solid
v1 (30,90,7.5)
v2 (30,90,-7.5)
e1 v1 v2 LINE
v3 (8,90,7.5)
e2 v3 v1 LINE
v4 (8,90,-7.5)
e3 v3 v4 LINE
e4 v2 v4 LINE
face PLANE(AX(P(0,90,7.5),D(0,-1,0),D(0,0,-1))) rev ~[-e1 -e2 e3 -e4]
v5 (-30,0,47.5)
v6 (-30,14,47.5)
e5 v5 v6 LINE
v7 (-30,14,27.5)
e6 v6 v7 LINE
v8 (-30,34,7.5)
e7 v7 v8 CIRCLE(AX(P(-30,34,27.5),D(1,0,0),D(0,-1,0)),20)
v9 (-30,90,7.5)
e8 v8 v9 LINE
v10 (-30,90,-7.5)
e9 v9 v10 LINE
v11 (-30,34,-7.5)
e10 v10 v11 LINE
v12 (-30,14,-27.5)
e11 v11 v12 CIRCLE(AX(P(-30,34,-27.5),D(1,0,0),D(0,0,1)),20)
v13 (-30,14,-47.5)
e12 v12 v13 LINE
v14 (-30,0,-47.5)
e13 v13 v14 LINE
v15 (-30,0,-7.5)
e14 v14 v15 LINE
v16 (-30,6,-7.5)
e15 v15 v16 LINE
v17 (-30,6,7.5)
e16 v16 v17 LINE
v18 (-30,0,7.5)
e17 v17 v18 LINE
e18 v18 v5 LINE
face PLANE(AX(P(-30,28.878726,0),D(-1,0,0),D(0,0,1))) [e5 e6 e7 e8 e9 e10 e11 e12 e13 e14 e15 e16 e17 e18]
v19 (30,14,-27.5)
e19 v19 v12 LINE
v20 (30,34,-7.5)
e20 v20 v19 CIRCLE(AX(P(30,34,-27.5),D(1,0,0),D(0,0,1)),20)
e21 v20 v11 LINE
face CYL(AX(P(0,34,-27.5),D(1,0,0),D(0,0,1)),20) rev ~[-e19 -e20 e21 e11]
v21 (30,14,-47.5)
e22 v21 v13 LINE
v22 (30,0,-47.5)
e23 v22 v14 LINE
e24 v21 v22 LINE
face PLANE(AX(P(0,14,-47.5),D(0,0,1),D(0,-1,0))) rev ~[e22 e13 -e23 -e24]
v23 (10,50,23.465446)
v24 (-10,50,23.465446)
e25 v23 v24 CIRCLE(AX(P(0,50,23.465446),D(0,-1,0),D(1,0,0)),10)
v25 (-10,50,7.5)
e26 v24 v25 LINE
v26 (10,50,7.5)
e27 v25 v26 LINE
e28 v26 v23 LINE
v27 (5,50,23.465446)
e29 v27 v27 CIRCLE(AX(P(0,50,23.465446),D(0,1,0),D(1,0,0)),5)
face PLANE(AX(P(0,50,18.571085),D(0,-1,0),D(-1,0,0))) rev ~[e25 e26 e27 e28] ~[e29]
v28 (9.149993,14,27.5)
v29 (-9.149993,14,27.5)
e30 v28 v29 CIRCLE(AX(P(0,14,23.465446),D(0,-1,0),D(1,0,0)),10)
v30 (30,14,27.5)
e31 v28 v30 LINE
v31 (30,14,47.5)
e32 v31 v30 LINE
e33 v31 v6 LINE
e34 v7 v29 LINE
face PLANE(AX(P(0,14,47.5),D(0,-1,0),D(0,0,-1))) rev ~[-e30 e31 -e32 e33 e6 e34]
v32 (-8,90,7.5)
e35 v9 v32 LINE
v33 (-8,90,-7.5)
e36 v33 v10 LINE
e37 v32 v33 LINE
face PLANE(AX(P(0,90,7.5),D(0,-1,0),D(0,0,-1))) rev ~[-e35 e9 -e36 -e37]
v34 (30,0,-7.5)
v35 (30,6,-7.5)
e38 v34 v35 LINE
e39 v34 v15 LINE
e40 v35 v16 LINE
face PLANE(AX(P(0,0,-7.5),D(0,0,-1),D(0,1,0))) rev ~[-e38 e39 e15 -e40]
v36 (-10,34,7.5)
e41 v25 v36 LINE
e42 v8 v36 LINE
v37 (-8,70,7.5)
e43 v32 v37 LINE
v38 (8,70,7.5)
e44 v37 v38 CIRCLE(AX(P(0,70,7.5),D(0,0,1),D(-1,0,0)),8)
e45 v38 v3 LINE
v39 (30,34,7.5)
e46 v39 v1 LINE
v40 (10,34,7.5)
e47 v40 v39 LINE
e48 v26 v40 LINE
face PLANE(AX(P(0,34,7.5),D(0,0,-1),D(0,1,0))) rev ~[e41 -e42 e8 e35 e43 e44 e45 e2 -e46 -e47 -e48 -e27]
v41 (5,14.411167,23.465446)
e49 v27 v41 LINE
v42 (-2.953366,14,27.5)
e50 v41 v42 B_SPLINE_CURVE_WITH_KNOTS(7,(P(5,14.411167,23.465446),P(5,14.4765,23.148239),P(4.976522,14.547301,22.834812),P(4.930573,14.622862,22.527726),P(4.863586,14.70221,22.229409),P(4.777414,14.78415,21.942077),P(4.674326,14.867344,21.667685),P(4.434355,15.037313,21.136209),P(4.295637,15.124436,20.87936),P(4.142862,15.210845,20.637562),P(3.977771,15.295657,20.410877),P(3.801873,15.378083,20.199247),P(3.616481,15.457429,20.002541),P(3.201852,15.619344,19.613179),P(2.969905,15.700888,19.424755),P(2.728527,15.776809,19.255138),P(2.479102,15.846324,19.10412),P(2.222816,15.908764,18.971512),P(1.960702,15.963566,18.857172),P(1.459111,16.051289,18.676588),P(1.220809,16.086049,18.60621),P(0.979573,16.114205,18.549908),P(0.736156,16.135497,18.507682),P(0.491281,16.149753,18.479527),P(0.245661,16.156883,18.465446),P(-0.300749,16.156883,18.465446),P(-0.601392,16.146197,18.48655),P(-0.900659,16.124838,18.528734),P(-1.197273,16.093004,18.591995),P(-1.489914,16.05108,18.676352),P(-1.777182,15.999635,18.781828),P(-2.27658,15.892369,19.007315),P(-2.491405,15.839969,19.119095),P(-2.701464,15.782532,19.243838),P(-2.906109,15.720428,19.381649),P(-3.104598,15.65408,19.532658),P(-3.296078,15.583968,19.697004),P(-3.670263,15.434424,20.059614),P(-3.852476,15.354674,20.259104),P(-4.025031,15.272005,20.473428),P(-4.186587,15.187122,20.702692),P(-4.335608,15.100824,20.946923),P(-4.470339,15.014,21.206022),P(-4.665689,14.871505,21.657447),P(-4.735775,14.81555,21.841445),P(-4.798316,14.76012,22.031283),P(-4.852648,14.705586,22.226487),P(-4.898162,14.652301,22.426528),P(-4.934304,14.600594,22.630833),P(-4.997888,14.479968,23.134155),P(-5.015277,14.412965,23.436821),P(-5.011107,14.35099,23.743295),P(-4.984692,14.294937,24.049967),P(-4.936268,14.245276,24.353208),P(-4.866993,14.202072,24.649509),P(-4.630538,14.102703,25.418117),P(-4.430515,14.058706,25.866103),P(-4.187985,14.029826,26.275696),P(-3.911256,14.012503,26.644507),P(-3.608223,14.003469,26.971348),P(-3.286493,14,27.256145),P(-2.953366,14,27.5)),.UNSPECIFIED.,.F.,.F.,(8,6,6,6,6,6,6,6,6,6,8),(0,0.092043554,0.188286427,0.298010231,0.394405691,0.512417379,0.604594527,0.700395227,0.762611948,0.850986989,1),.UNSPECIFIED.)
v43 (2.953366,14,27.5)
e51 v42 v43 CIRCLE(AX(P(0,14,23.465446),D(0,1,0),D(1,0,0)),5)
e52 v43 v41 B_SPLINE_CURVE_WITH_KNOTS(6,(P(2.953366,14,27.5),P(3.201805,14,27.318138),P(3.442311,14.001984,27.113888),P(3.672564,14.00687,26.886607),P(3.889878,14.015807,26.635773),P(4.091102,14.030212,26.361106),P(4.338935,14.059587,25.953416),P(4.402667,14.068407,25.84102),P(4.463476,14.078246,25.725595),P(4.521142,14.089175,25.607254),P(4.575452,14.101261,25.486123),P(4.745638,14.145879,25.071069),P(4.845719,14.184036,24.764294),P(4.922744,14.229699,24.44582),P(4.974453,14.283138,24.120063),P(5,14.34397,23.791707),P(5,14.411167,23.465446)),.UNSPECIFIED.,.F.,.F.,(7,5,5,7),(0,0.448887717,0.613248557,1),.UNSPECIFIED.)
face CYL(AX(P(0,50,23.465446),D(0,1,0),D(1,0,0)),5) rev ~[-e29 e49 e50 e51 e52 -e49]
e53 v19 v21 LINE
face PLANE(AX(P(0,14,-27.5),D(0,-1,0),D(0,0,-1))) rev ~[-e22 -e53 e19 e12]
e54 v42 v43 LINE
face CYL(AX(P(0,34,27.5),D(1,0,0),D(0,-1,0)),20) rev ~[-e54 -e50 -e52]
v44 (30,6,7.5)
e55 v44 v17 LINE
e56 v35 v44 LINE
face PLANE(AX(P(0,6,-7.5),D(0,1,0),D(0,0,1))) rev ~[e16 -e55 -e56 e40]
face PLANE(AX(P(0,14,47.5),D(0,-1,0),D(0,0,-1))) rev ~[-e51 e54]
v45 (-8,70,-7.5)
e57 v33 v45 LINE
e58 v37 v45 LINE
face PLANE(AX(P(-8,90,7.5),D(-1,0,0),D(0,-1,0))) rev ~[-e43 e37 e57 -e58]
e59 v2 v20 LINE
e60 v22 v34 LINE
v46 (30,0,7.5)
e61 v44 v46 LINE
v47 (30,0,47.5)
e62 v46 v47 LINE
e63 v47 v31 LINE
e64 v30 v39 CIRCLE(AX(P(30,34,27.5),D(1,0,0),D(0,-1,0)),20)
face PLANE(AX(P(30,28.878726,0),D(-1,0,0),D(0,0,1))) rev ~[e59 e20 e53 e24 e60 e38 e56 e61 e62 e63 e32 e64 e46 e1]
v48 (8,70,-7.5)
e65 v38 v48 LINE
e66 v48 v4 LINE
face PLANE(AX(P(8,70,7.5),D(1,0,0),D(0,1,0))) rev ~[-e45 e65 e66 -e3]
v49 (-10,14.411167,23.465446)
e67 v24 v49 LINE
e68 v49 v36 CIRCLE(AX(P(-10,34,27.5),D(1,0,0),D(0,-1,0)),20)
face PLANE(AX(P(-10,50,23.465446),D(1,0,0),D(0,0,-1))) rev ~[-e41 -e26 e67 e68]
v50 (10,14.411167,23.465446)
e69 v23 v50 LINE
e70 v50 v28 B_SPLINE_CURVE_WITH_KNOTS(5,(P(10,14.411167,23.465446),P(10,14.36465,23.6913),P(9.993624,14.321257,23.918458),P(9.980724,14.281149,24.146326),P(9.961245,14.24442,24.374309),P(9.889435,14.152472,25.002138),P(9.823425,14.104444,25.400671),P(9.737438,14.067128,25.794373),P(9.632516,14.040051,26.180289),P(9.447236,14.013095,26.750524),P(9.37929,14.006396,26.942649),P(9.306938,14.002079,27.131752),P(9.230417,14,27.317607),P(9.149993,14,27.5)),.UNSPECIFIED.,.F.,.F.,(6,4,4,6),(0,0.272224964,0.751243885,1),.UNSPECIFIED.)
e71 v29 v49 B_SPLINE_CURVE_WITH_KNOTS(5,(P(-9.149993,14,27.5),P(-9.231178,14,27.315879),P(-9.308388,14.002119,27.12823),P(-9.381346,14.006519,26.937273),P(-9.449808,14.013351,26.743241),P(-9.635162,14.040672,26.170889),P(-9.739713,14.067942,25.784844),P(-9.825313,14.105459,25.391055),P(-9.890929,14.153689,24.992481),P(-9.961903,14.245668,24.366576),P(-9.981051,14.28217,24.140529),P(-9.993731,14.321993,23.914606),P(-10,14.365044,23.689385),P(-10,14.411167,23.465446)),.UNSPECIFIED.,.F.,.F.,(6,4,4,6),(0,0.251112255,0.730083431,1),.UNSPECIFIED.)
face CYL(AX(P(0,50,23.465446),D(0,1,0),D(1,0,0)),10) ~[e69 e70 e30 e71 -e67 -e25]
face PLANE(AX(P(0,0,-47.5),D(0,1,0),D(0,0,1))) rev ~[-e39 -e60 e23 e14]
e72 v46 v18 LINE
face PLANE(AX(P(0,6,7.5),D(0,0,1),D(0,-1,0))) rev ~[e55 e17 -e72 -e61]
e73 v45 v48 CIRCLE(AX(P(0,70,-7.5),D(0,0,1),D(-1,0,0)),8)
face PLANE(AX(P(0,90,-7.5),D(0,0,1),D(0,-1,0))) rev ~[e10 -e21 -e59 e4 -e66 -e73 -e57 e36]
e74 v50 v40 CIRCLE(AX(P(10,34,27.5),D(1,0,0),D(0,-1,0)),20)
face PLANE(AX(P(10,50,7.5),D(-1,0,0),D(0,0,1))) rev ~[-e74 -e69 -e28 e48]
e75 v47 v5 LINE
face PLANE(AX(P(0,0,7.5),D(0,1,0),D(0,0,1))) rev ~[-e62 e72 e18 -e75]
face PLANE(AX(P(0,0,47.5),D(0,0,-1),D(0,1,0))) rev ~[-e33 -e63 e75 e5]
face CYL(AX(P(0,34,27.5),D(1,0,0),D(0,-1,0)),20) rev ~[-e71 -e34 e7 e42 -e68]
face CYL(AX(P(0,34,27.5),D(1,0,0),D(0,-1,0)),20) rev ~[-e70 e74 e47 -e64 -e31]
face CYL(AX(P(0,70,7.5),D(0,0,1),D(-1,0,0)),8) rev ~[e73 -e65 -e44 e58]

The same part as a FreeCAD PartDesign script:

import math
import FreeCAD as App
import Part
import Sketcher

V = App.Vector

doc = App.newDocument("Part")
body = doc.addObject("PartDesign::Body", "Body")

# Sketch on YZ plane
sketch1 = body.newObject("Sketcher::SketchObject", "Sketch")
sketch1.AttachmentSupport = (doc.getObject("YZ_Plane"), [""])
sketch1.MapMode = "FlatFace"
sketch1.addGeometry(Part.LineSegment(V(90, -8, 0), V(90, 8, 0)), False)
sketch1.addGeometry(Part.LineSegment(V(90, 8, 0), V(34, 8, 0)), False)
sketch1.addGeometry(Part.ArcOfCircle(Part.Circle(V(34, 27, 0), V(0, 0, 1), 20), math.radians(180), math.radians(270)), False)
sketch1.addGeometry(Part.LineSegment(V(14, 28, 0), V(14, 48, 0)), False)
sketch1.addGeometry(Part.LineSegment(V(14, 48, 0), V(0, 48, 0)), False)
sketch1.addGeometry(Part.LineSegment(V(0, 48, 0), V(0, 8, 0)), False)
sketch1.addGeometry(Part.LineSegment(V(0, 8, 0), V(6, 8, 0)), False)
sketch1.addGeometry(Part.LineSegment(V(6, 8, 0), V(6, -8, 0)), False)
sketch1.addGeometry(Part.LineSegment(V(6, -8, 0), V(0, -8, 0)), False)
sketch1.addGeometry(Part.LineSegment(V(0, -8, 0), V(0, -48, 0)), False)
sketch1.addGeometry(Part.LineSegment(V(0, -48, 0), V(14, -48, 0)), False)
sketch1.addGeometry(Part.LineSegment(V(14, -48, 0), V(14, -28, 0)), False)
sketch1.addGeometry(Part.ArcOfCircle(Part.Circle(V(34, -27, 0), V(0, 0, 1), 20), math.radians(90), math.radians(180)), False)
sketch1.addGeometry(Part.LineSegment(V(34, -8, 0), V(90, -8, 0)), False)
sketch1.addConstraint(Sketcher.Constraint("Coincident", 0, 2, 1, 1))
sketch1.addConstraint(Sketcher.Constraint("Tangent", 1, 2, 2, 2))
sketch1.addConstraint(Sketcher.Constraint("Tangent", 2, 1, 3, 1))
sketch1.addConstraint(Sketcher.Constraint("Coincident", 3, 2, 4, 1))
sketch1.addConstraint(Sketcher.Constraint("Coincident", 4, 2, 5, 1))
sketch1.addConstraint(Sketcher.Constraint("Coincident", 5, 2, 6, 1))
sketch1.addConstraint(Sketcher.Constraint("Coincident", 6, 2, 7, 1))
sketch1.addConstraint(Sketcher.Constraint("Coincident", 7, 2, 8, 1))
sketch1.addConstraint(Sketcher.Constraint("Coincident", 8, 2, 9, 1))
sketch1.addConstraint(Sketcher.Constraint("Coincident", 9, 2, 10, 1))
sketch1.addConstraint(Sketcher.Constraint("Coincident", 10, 2, 11, 1))
sketch1.addConstraint(Sketcher.Constraint("Tangent", 11, 2, 12, 2))
sketch1.addConstraint(Sketcher.Constraint("Tangent", 12, 1, 13, 1))
sketch1.addConstraint(Sketcher.Constraint("Coincident", 13, 2, 0, 1))
sketch1.addConstraint(Sketcher.Constraint("Vertical", 0))
sketch1.addConstraint(Sketcher.Constraint("Horizontal", 1))
sketch1.addConstraint(Sketcher.Constraint("Vertical", 3))
sketch1.addConstraint(Sketcher.Constraint("Horizontal", 4))
sketch1.addConstraint(Sketcher.Constraint("Vertical", 5))
sketch1.addConstraint(Sketcher.Constraint("Horizontal", 6))
sketch1.addConstraint(Sketcher.Constraint("Vertical", 7))
sketch1.addConstraint(Sketcher.Constraint("Horizontal", 8))
sketch1.addConstraint(Sketcher.Constraint("Vertical", 9))
sketch1.addConstraint(Sketcher.Constraint("Horizontal", 10))
sketch1.addConstraint(Sketcher.Constraint("Vertical", 11))
sketch1.addConstraint(Sketcher.Constraint("Horizontal", 13))
sketch1.addConstraint(Sketcher.Constraint("Equal", 2, 12))
sketch1.addConstraint(Sketcher.Constraint("Symmetric", 5, 2, 8, 2, -1, 1))
sketch1.addConstraint(Sketcher.Constraint("Symmetric", 2, 3, 12, 3, -1))
sketch1.addConstraint(Sketcher.Constraint("Symmetric", 4, 2, 9, 2, -1))
sketch1.addConstraint(Sketcher.Constraint("Horizontal", 1, 2, 5, 2))
sketch1.addConstraint(Sketcher.Constraint("Radius", 2, 20.0))
sketch1.addConstraint(Sketcher.Constraint("DistanceX", 1, 2, 1, 1, 56.0))
sketch1.addConstraint(Sketcher.Constraint("DistanceX", 4, 2, 4, 1, 14.0))
sketch1.addConstraint(Sketcher.Constraint("DistanceX", 6, 1, 6, 2, 6.0))
sketch1.addConstraint(Sketcher.Constraint("DistanceY", 0, 1, 0, 2, 15.0))
sketch1.addConstraint(Sketcher.Constraint("DistanceY", 3, 1, 3, 2, 20.0))
pad1 = body.newObject("PartDesign::Pad", "Pad")
pad1.Profile = sketch1
pad1.Length = 60
pad1.Midplane = True

# Sketch on XY plane
sketch2 = body.newObject("Sketcher::SketchObject", "Sketch001")
sketch2.AttachmentSupport = (doc.getObject("XY_Plane"), [""])
sketch2.MapMode = "FlatFace"
sketch2.AttachmentOffset = App.Placement(V(0, 0, 7.5), App.Rotation())
sketch2.addGeometry(Part.LineSegment(V(8, 70, 0), V(8, 90, 0)), False)
sketch2.addGeometry(Part.LineSegment(V(8, 90, 0), V(-8, 90, 0)), False)
sketch2.addGeometry(Part.LineSegment(V(-8, 90, 0), V(-8, 70, 0)), False)
sketch2.addGeometry(Part.ArcOfCircle(Part.Circle(V(0, 70, 0), V(0, 0, 1), 8), math.radians(180), math.radians(360)), False)
sketch2.addConstraint(Sketcher.Constraint("Coincident", 0, 2, 1, 1))
sketch2.addConstraint(Sketcher.Constraint("Coincident", 1, 2, 2, 1))
sketch2.addConstraint(Sketcher.Constraint("Tangent", 2, 2, 3, 1))
sketch2.addConstraint(Sketcher.Constraint("Tangent", 3, 2, 0, 1))
sketch2.addConstraint(Sketcher.Constraint("Vertical", 0))
sketch2.addConstraint(Sketcher.Constraint("Horizontal", 1))
sketch2.addConstraint(Sketcher.Constraint("Vertical", 2))
sketch2.addConstraint(Sketcher.Constraint("PointOnObject", 3, 3, -2))
sketch2.addConstraint(Sketcher.Constraint("Radius", 3, 8.0))
sketch2.addConstraint(Sketcher.Constraint("DistanceY", 0, 1, 0, 2, 20.0))
sketch2.addConstraint(Sketcher.Constraint("DistanceY", -1, 1, 3, 3, 70.0))
pocket1 = body.newObject("PartDesign::Pocket", "Pocket")
pocket1.Profile = sketch2
pocket1.Length = 60

# Sketch on XZ plane
sketch3 = body.newObject("Sketcher::SketchObject", "Sketch002")
sketch3.AttachmentSupport = (doc.getObject("XZ_Plane"), [""])
sketch3.MapMode = "FlatFace"
sketch3.AttachmentOffset = App.Placement(V(0, 0, -50), App.Rotation())
sketch3.addGeometry(Part.LineSegment(V(-10, 8, 0), V(-10, 23, 0)), False)
sketch3.addGeometry(Part.ArcOfCircle(Part.Circle(V(0, 23, 0), V(0, 0, 1), 10), math.radians(0), math.radians(180)), False)
sketch3.addGeometry(Part.LineSegment(V(10, 23, 0), V(10, 8, 0)), False)
sketch3.addGeometry(Part.LineSegment(V(10, 8, 0), V(-10, 8, 0)), False)
sketch3.addGeometry(Part.Circle(V(0, 23, 0), V(0, 0, 1), 5), False)
sketch3.addConstraint(Sketcher.Constraint("Tangent", 0, 2, 1, 2))
sketch3.addConstraint(Sketcher.Constraint("Tangent", 1, 1, 2, 1))
sketch3.addConstraint(Sketcher.Constraint("Coincident", 2, 2, 3, 1))
sketch3.addConstraint(Sketcher.Constraint("Coincident", 3, 2, 0, 1))
sketch3.addConstraint(Sketcher.Constraint("Vertical", 0))
sketch3.addConstraint(Sketcher.Constraint("Vertical", 2))
sketch3.addConstraint(Sketcher.Constraint("Horizontal", 3))
sketch3.addConstraint(Sketcher.Constraint("Coincident", 4, 3, 1, 3))
sketch3.addConstraint(Sketcher.Constraint("PointOnObject", 1, 3, -2))
sketch3.addConstraint(Sketcher.Constraint("Diameter", 4, 10.0))
sketch3.addConstraint(Sketcher.Constraint("Radius", 1, 10.0))
sketch3.addConstraint(Sketcher.Constraint("DistanceY", -1, 1, 2, 2, 7.5))
sketch3.addConstraint(Sketcher.Constraint("DistanceY", 0, 1, 0, 2, 15.965446))
pad2 = body.newObject("PartDesign::Pad", "Pad001")
pad2.Profile = sketch3
pad2.Length = 36

doc.recompute()
